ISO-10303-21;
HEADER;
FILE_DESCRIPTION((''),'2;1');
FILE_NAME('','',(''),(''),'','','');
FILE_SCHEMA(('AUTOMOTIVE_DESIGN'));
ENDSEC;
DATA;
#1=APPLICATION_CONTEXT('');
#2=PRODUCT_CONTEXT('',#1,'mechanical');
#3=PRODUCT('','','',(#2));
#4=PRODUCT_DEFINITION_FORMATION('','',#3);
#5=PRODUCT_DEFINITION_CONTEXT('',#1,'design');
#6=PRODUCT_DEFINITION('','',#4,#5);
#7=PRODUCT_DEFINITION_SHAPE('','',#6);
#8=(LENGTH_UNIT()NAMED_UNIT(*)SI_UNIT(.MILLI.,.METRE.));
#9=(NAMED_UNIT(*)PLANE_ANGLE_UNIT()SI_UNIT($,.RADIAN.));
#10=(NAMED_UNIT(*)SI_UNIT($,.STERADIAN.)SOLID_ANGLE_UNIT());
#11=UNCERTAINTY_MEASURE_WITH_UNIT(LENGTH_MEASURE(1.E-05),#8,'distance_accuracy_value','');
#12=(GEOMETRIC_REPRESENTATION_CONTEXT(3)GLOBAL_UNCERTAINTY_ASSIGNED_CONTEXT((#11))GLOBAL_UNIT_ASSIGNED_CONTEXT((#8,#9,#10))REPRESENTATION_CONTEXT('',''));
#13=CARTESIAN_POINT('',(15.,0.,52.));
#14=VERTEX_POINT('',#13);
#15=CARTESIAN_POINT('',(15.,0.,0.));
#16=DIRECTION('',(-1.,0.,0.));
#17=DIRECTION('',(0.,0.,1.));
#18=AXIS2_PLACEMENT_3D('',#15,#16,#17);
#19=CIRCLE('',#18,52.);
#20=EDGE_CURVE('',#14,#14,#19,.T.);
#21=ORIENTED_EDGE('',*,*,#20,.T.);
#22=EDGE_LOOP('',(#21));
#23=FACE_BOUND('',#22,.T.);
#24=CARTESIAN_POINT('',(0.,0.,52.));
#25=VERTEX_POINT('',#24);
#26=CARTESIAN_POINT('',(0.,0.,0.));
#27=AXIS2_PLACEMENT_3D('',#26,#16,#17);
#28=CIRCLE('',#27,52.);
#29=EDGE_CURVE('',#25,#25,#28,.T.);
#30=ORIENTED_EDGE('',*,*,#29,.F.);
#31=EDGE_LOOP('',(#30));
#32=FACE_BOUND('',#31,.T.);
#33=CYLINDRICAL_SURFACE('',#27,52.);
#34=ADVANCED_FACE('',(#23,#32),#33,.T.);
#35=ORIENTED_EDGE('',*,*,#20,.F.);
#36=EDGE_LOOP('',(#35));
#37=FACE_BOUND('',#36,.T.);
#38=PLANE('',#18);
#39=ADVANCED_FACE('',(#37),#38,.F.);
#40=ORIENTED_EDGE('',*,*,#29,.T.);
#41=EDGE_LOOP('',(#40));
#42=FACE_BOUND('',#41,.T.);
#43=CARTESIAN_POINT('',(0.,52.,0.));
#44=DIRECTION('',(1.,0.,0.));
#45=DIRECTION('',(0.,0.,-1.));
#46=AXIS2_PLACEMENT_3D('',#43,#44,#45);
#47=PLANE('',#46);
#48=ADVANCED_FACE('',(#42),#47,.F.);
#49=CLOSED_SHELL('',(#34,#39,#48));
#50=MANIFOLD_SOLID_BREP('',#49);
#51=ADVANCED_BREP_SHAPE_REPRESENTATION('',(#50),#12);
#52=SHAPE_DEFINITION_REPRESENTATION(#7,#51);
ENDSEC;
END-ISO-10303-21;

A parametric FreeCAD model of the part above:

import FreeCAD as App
import Part
import Sketcher
from FreeCAD import Vector
Q = App.Units.Quantity

doc = App.newDocument("Part")
body = doc.addObject("PartDesign::Body", "Body")

# Sketch on XY plane
sketch1 = body.newObject("Sketcher::SketchObject", "Sketch")
sketch1.AttachmentSupport = (doc.getObject("XY_Plane"), [""])
sketch1.MapMode = "FlatFace"
sketch1.addGeometry(Part.LineSegment(Vector(0, 52, 0), Vector(0, 0, 0)), False)
sketch1.addGeometry(Part.LineSegment(Vector(0, 0, 0), Vector(15, 0, 0)), False)
sketch1.addGeometry(Part.LineSegment(Vector(15, 0, 0), Vector(15, 52, 0)), False)
sketch1.addGeometry(Part.LineSegment(Vector(15, 52, 0), Vector(0, 52, 0)), False)
sketch1.addConstraint(Sketcher.Constraint("Coincident", 0, 2, 1, 1))
sketch1.addConstraint(Sketcher.Constraint("Coincident", 1, 2, 2, 1))
sketch1.addConstraint(Sketcher.Constraint("Coincident", 2, 2, 3, 1))
sketch1.addConstraint(Sketcher.Constraint("Coincident", 3, 2, 0, 1))
sketch1.addConstraint(Sketcher.Constraint("Vertical", 0))
sketch1.addConstraint(Sketcher.Constraint("Horizontal", 1))
sketch1.addConstraint(Sketcher.Constraint("Vertical", 2))
sketch1.addConstraint(Sketcher.Constraint("Horizontal", 3))
sketch1.addConstraint(Sketcher.Constraint("Coincident", 0, 2, -1, 1))
sketch1.addConstraint(Sketcher.Constraint("DistanceX", 1, 1, 1, 2, Q("15 mm")))
sketch1.addConstraint(Sketcher.Constraint("DistanceY", 0, 2, 0, 1, Q("52 mm")))
revolution = body.newObject("PartDesign::Revolution", "Revolution")
revolution.Profile = sketch1
revolution.ReferenceAxis = (sketch1, ["H_Axis"])
revolution.Angle = 360

doc.recompute()
